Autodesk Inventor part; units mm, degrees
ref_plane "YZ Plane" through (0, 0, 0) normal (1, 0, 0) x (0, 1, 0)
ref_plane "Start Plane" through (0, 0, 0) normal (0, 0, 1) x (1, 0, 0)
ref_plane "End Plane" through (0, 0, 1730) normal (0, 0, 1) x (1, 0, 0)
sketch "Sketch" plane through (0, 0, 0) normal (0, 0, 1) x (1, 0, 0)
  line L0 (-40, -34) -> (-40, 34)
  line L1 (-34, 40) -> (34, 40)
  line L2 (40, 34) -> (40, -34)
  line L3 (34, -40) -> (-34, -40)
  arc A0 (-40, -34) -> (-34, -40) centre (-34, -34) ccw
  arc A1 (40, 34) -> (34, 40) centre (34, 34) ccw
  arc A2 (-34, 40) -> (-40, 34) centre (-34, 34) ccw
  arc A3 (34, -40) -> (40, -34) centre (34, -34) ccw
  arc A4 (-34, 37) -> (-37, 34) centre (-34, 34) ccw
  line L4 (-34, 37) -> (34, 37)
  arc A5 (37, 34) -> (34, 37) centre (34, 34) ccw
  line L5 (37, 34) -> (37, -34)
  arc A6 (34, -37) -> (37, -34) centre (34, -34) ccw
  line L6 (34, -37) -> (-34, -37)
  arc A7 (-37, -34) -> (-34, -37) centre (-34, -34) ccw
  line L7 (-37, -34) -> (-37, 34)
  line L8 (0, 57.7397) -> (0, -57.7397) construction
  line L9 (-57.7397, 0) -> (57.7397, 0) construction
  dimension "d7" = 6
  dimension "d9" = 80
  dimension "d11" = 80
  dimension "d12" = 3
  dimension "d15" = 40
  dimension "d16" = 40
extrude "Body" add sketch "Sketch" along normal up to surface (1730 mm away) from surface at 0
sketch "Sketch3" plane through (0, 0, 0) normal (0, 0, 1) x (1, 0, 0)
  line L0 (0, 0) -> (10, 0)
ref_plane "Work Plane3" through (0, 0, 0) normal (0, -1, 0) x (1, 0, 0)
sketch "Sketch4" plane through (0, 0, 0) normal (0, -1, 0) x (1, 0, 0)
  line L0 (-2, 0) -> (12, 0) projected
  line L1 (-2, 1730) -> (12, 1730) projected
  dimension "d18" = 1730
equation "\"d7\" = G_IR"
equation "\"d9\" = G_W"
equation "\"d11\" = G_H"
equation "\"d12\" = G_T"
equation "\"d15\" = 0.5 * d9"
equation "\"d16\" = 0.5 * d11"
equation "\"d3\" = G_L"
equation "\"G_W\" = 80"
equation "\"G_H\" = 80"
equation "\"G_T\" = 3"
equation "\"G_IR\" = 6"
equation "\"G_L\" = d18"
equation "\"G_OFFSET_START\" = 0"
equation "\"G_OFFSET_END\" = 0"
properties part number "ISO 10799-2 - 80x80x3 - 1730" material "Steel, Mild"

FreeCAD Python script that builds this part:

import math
import FreeCAD as App
import Part
import Sketcher
from FreeCAD import Vector

doc = App.newDocument("Part")
body = doc.addObject("PartDesign::Body", "Body")

# Sketch on XY plane
sketch1 = body.newObject("Sketcher::SketchObject", "Sketch")
sketch1.AttachmentSupport = (doc.getObject("XY_Plane"), [""])
sketch1.MapMode = "FlatFace"
sketch1.addGeometry(Part.LineSegment(Vector(-40, 34, 0), Vector(-40, -34, 0)), False)
sketch1.addGeometry(Part.ArcOfCircle(Part.Circle(Vector(-34, -34, 0), Vector(0, 0, 1), 6), math.radians(180), math.radians(270)), False)
sketch1.addGeometry(Part.LineSegment(Vector(-34, -40, 0), Vector(34, -40, 0)), False)
sketch1.addGeometry(Part.ArcOfCircle(Part.Circle(Vector(34, -34, 0), Vector(0, 0, 1), 6), math.radians(-90), math.radians(0)), False)
sketch1.addGeometry(Part.LineSegment(Vector(40, -34, 0), Vector(40, 34, 0)), False)
sketch1.addGeometry(Part.ArcOfCircle(Part.Circle(Vector(34, 34, 0), Vector(0, 0, 1), 6), math.radians(0), math.radians(90)), False)
sketch1.addGeometry(Part.LineSegment(Vector(34, 40, 0), Vector(-34, 40, 0)), False)
sketch1.addGeometry(Part.ArcOfCircle(Part.Circle(Vector(-34, 34, 0), Vector(0, 0, 1), 6), math.radians(90), math.radians(180)), False)
sketch1.addGeometry(Part.ArcOfCircle(Part.Circle(Vector(-34, 34, 0), Vector(0, 0, 1), 3), math.radians(90), math.radians(180)), False)
sketch1.addGeometry(Part.LineSegment(Vector(-34, 37, 0), Vector(34, 37, 0)), False)
sketch1.addGeometry(Part.ArcOfCircle(Part.Circle(Vector(34, 34, 0), Vector(0, 0, 1), 3), math.radians(0), math.radians(90)), False)
sketch1.addGeometry(Part.LineSegment(Vector(37, 34, 0), Vector(37, -34, 0)), False)
sketch1.addGeometry(Part.ArcOfCircle(Part.Circle(Vector(34, -34, 0), Vector(0, 0, 1), 3), math.radians(-90), math.radians(0)), False)
sketch1.addGeometry(Part.LineSegment(Vector(34, -37, 0), Vector(-34, -37, 0)), False)
sketch1.addGeometry(Part.ArcOfCircle(Part.Circle(Vector(-34, -34, 0), Vector(0, 0, 1), 3), math.radians(180), math.radians(270)), False)
sketch1.addGeometry(Part.LineSegment(Vector(-37, -34, 0), Vector(-37, 34, 0)), False)
sketch1.addConstraint(Sketcher.Constraint("Tangent", 0, 2, 1, 1))
sketch1.addConstraint(Sketcher.Constraint("Tangent", 1, 2, 2, 1))
sketch1.addConstraint(Sketcher.Constraint("Tangent", 2, 2, 3, 1))
sketch1.addConstraint(Sketcher.Constraint("Tangent", 3, 2, 4, 1))
sketch1.addConstraint(Sketcher.Constraint("Tangent", 4, 2, 5, 1))
sketch1.addConstraint(Sketcher.Constraint("Tangent", 5, 2, 6, 1))
sketch1.addConstraint(Sketcher.Constraint("Tangent", 6, 2, 7, 1))
sketch1.addConstraint(Sketcher.Constraint("Tangent", 7, 2, 0, 1))
sketch1.addConstraint(Sketcher.Constraint("Tangent", 8, 1, 9, 1))
sketch1.addConstraint(Sketcher.Constraint("Tangent", 9, 2, 10, 2))
sketch1.addConstraint(Sketcher.Constraint("Tangent", 10, 1, 11, 1))
sketch1.addConstraint(Sketcher.Constraint("Tangent", 11, 2, 12, 2))
sketch1.addConstraint(Sketcher.Constraint("Tangent", 12, 1, 13, 1))
sketch1.addConstraint(Sketcher.Constraint("Tangent", 13, 2, 14, 2))
sketch1.addConstraint(Sketcher.Constraint("Tangent", 14, 1, 15, 1))
sketch1.addConstraint(Sketcher.Constraint("Tangent", 15, 2, 8, 2))
sketch1.addConstraint(Sketcher.Constraint("Vertical", 0))
sketch1.addConstraint(Sketcher.Constraint("Horizontal", 2))
sketch1.addConstraint(Sketcher.Constraint("Vertical", 4))
sketch1.addConstraint(Sketcher.Constraint("Horizontal", 6))
sketch1.addConstraint(Sketcher.Constraint("Horizontal", 9))
sketch1.addConstraint(Sketcher.Constraint("Vertical", 11))
sketch1.addConstraint(Sketcher.Constraint("Horizontal", 13))
sketch1.addConstraint(Sketcher.Constraint("Vertical", 15))
sketch1.addConstraint(Sketcher.Constraint("Coincident", 8, 3, 7, 3))
sketch1.addConstraint(Sketcher.Constraint("Coincident", 10, 3, 5, 3))
sketch1.addConstraint(Sketcher.Constraint("Coincident", 12, 3, 3, 3))
sketch1.addConstraint(Sketcher.Constraint("Equal", 1, 3))
sketch1.addConstraint(Sketcher.Constraint("Equal", 3, 5))
sketch1.addConstraint(Sketcher.Constraint("Equal", 5, 7))
sketch1.addConstraint(Sketcher.Constraint("Equal", 12, 14))
sketch1.addConstraint(Sketcher.Constraint("Symmetric", 1, 3, 5, 3, -1, 1))
sketch1.addConstraint(Sketcher.Constraint("Equal", 13, 0))
sketch1.addConstraint(Sketcher.Constraint("Radius", 1, 6.0))
sketch1.addConstraint(Sketcher.Constraint("Radius", 8, 3.0))
sketch1.addConstraint(Sketcher.Constraint("DistanceX", 0, 2, -1, 1, 40.0))
pad1 = body.newObject("PartDesign::Pad", "Pad")
pad1.Profile = sketch1
pad1.Length = 1730

doc.recompute()
